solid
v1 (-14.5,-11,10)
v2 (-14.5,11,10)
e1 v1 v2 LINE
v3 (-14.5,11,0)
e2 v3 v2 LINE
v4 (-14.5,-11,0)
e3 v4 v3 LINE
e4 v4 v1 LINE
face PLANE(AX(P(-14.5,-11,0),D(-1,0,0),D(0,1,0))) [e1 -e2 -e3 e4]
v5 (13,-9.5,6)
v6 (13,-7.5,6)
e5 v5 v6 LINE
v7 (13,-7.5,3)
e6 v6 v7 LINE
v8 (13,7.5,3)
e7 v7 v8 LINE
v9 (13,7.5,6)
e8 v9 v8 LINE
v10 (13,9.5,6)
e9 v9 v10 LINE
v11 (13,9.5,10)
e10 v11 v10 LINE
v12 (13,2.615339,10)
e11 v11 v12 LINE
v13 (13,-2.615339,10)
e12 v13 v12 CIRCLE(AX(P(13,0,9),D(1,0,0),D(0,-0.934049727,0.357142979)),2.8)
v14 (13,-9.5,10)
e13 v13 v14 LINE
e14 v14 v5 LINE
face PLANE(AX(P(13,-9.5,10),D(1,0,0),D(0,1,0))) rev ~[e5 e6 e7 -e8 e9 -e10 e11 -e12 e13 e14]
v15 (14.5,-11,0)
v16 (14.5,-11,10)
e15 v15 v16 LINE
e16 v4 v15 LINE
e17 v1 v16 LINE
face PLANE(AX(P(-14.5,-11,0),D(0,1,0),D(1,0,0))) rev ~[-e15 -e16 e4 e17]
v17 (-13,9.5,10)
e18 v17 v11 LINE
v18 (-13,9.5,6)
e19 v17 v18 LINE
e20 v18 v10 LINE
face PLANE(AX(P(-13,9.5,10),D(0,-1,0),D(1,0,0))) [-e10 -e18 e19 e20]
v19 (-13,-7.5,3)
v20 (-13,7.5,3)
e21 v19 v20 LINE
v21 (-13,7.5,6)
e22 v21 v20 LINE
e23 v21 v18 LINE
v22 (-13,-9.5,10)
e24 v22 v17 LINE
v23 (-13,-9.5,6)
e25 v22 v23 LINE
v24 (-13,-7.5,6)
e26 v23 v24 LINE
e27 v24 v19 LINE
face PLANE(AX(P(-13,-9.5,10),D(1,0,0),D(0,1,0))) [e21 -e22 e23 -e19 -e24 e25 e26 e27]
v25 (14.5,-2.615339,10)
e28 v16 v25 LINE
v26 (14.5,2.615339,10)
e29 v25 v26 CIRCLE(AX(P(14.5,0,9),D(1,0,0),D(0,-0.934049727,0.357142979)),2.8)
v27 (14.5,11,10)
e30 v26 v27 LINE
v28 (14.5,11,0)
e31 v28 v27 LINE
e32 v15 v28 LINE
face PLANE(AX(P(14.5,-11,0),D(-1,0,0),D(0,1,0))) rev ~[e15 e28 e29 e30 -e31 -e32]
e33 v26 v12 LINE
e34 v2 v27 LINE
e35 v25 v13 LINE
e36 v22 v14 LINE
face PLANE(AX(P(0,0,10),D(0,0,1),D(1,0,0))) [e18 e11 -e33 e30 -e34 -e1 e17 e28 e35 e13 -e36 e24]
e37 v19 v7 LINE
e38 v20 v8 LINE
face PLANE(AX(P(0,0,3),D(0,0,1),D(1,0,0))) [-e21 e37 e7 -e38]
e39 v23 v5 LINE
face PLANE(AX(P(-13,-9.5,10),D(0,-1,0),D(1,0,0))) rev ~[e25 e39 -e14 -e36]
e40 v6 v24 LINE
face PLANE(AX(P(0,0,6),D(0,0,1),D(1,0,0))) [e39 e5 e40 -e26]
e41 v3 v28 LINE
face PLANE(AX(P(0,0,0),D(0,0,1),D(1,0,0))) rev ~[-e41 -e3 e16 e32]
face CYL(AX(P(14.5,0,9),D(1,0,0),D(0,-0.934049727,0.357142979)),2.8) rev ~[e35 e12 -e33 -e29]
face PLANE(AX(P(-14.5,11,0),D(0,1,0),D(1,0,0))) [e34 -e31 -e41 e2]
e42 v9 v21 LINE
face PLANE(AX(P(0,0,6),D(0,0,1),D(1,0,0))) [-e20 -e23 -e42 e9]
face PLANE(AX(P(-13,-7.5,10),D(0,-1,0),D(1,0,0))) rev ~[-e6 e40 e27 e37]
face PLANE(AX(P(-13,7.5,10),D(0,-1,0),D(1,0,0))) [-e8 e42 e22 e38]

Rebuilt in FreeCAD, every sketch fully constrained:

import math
import FreeCAD as App
import Part
import Sketcher

V = App.Vector


def add_polygon(sketch, points):
    """Adds a closed chain of lines whose ends are joined by coincident constraints."""
    first, n = sketch.GeometryCount, len(points)
    for a, b in zip(points, points[1:] + points[:1]):
        sketch.addGeometry(Part.LineSegment(App.Vector(*a, 0), App.Vector(*b, 0)), False)
    for i in range(n):
        sketch.addConstraint(Sketcher.Constraint("Coincident", first + i, 2, first + (i + 1) % n, 1))

doc = App.newDocument("Part")
body = doc.addObject("PartDesign::Body", "Body")

# Sketch on XY plane
sketch1 = body.newObject("Sketcher::SketchObject", "Sketch")
sketch1.AttachmentSupport = (doc.getObject("XY_Plane"), [""])
sketch1.MapMode = "FlatFace"
add_polygon(sketch1, [(-14.5, 11), (-14.5, -11), (14.5, -11), (14.5, 11)])  # lines 0-3
sketch1.addConstraint([
    Sketcher.Constraint("Vertical", 0),
    Sketcher.Constraint("Horizontal", 1),
    Sketcher.Constraint("Vertical", 2),
    Sketcher.Constraint("Horizontal", 3),
    Sketcher.Constraint("Symmetric", 0, 2, 2, 2, -1, 1),
    Sketcher.Constraint("DistanceX", 1, 1, 1, 2, 29.0),
    Sketcher.Constraint("DistanceY", 0, 2, 0, 1, 22.0),
])
pad1 = body.newObject("PartDesign::Pad", "Pad")
pad1.Profile = sketch1
pad1.Length = 10

# Sketch on XY plane
sketch2 = body.newObject("Sketcher::SketchObject", "Sketch001")
sketch2.AttachmentSupport = (doc.getObject("XY_Plane"), [""])
sketch2.MapMode = "FlatFace"
sketch2.AttachmentOffset = App.Placement(V(0, 0, 10), App.Rotation())
add_polygon(sketch2, [(-13, 7.5), (-13, -7.5), (13, -7.5), (13, 7.5)])  # lines 0-3
sketch2.addConstraint([
    Sketcher.Constraint("Vertical", 0),
    Sketcher.Constraint("Horizontal", 1),
    Sketcher.Constraint("Vertical", 2),
    Sketcher.Constraint("Horizontal", 3),
    Sketcher.Constraint("Symmetric", 0, 2, 2, 2, -1, 1),
    Sketcher.Constraint("DistanceX", 1, 1, 1, 2, 26.0),
    Sketcher.Constraint("DistanceY", 0, 2, 0, 1, 15.0),
])
pocket1 = body.newObject("PartDesign::Pocket", "Pocket")
pocket1.Profile = sketch2
pocket1.Length = 7

# Sketch on XY plane
sketch3 = body.newObject("Sketcher::SketchObject", "Sketch002")
sketch3.AttachmentSupport = (doc.getObject("XY_Plane"), [""])
sketch3.MapMode = "FlatFace"
sketch3.AttachmentOffset = App.Placement(V(0, 0, 10), App.Rotation())
add_polygon(sketch3, [(-13, 9.5), (-13, -9.5), (13, -9.5), (13, 9.5)])  # lines 0-3
sketch3.addConstraint([
    Sketcher.Constraint("Vertical", 0),
    Sketcher.Constraint("Horizontal", 1),
    Sketcher.Constraint("Vertical", 2),
    Sketcher.Constraint("Horizontal", 3),
    Sketcher.Constraint("Symmetric", 0, 2, 2, 2, -1, 1),
    Sketcher.Constraint("DistanceX", 1, 1, 1, 2, 26.0),
    Sketcher.Constraint("DistanceY", 0, 2, 0, 1, 19.0),
])
pocket2 = body.newObject("PartDesign::Pocket", "Pocket001")
pocket2.Profile = sketch3
pocket2.Length = 4

# Sketch on YZ plane
sketch4 = body.newObject("Sketcher::SketchObject", "Sketch003")
sketch4.AttachmentSupport = (doc.getObject("YZ_Plane"), [""])
sketch4.MapMode = "FlatFace"
sketch4.AttachmentOffset = App.Placement(V(0, 0, 14.5), App.Rotation())
sketch4.addGeometry([
    Part.ArcOfCircle(Part.Circle(V(0, 9, 0), V(0, 0, 1), 2.8), math.radians(159.07516), math.radians(380.92484)),
    Part.LineSegment(V(2.615339, 10, 0), V(-2.615339, 10, 0)),
], False)
sketch4.addConstraint([
    Sketcher.Constraint("Coincident", 0, 1, 1, 2),
    Sketcher.Constraint("Coincident", 1, 1, 0, 2),
    Sketcher.Constraint("Horizontal", 1),
    Sketcher.Constraint("PointOnObject", 0, 3, -2),
    Sketcher.Constraint("Radius", 0, 2.8),
    Sketcher.Constraint("DistanceY", -1, 1, 0, 3, 9.0),
    Sketcher.Constraint("DistanceY", -1, 1, 0, 1, 10.0),
])
pocket3 = body.newObject("PartDesign::Pocket", "Pocket002")
pocket3.Profile = sketch4
pocket3.Length = 1.5

doc.recompute()
